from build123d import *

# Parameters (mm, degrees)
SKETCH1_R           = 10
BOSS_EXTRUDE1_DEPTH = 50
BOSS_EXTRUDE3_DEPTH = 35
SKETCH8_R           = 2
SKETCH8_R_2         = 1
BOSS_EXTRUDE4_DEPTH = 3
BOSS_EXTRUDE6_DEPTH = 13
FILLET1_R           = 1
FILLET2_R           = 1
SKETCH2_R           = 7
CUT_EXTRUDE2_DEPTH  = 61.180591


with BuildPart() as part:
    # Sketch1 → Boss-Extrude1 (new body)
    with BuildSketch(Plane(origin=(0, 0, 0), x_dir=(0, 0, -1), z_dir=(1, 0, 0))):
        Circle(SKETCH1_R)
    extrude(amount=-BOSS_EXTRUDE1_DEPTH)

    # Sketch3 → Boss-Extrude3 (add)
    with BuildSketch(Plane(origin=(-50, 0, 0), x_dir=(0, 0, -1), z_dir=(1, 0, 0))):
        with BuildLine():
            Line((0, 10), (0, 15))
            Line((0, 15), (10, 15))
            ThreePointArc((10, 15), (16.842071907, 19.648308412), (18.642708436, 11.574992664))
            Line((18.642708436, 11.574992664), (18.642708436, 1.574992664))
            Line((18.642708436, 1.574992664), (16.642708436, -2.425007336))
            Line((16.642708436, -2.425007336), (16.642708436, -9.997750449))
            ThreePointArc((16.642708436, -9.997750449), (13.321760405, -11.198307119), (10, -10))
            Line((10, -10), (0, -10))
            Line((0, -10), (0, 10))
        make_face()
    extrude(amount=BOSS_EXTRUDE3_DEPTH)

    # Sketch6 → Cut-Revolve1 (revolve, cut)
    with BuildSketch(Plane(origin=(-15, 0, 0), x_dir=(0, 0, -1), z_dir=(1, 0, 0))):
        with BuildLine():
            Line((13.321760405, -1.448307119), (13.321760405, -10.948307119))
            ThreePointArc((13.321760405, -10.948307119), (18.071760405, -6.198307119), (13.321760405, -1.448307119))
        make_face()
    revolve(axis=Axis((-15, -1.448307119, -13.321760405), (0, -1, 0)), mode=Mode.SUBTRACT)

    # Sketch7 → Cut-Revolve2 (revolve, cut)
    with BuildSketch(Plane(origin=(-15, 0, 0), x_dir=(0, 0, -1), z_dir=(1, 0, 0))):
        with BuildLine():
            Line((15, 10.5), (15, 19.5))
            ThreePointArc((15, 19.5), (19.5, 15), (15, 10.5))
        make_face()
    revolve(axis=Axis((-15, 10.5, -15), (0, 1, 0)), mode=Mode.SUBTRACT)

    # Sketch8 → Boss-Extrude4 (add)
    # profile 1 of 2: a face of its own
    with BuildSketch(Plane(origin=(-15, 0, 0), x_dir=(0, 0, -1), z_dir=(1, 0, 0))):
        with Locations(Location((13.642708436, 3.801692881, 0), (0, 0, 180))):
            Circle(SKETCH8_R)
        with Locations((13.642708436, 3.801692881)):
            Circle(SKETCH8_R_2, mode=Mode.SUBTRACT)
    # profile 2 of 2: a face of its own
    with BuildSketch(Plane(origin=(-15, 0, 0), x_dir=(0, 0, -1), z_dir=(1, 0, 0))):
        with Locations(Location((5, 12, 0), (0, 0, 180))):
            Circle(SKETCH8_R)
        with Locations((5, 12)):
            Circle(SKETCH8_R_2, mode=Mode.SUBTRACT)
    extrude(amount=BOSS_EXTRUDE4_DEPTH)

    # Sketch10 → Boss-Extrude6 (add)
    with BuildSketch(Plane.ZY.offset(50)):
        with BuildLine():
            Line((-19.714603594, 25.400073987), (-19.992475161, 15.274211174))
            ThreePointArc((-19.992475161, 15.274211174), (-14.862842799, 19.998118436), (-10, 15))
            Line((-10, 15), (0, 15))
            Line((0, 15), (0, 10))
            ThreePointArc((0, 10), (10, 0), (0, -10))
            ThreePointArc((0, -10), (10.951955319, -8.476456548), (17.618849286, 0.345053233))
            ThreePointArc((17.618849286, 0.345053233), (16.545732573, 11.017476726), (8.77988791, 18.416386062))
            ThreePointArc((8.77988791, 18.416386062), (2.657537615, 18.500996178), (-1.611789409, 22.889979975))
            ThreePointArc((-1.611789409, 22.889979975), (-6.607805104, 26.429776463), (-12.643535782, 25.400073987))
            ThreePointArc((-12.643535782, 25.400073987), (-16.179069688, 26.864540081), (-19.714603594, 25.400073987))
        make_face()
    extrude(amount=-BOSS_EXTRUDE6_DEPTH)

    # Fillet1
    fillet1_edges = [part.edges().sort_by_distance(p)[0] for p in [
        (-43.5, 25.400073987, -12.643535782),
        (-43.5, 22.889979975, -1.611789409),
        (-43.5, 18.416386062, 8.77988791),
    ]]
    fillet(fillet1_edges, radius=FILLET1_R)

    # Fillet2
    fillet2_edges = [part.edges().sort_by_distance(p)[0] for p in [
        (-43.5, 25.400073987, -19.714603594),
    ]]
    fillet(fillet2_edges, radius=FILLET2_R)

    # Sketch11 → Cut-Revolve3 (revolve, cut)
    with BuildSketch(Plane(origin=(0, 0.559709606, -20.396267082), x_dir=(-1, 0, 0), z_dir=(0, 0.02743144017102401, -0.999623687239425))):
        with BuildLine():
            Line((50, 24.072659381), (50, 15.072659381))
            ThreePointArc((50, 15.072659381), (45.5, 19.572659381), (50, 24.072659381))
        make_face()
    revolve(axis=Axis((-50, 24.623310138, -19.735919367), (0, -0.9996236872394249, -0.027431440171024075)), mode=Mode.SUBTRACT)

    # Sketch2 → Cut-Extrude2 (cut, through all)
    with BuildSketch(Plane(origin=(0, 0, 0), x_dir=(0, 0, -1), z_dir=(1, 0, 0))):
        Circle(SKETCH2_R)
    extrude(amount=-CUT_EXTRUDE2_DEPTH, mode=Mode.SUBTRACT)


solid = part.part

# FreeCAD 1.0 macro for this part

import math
import FreeCAD as App
import Part
import Sketcher
from FreeCAD import Vector


def edges_at(feature, points):
    """Names of the edges that pass closest to the given points."""
    edges = feature.Shape.Edges
    near = lambda p: min(range(len(edges)), key=lambda i: edges[i].distToShape(Part.Vertex(*p))[0])
    return sorted({f"Edge{near(p) + 1}" for p in points})

doc = App.newDocument("Part")
body = doc.addObject("PartDesign::Body", "Body")

# Sketch on YZ plane
sketch1 = doc.addObject("Sketcher::SketchObject", "Sketch")
body.addObject(sketch1)
sketch1.AttachmentSupport = (doc.YZ_Plane, [""])
sketch1.MapMode = "FlatFace"
sketch1.addGeometry(Part.Circle(Vector(0, 0, 0), Vector(0, 0, 1), 10), False)
sketch1.addConstraint(Sketcher.Constraint("Coincident", 0, 3, -1, 1))
sketch1.addConstraint(Sketcher.Constraint("Diameter", 0, 20.0))
pad1 = doc.addObject("PartDesign::Pad", "Pad")
body.addObject(pad1)
pad1.Profile = sketch1
pad1.Length = 50
pad1.Reversed = True

# Sketch on YZ plane
sketch2 = doc.addObject("Sketcher::SketchObject", "Sketch001")
body.addObject(sketch2)
sketch2.AttachmentSupport = (doc.YZ_Plane, [""])
sketch2.MapMode = "FlatFace"
sketch2.AttachmentOffset = App.Placement(Vector(0, 0, -50), App.Rotation())
sketch2.addGeometry(Part.LineSegment(Vector(15, -10, 0), Vector(15, 0, 0)), False)
sketch2.addGeometry(Part.LineSegment(Vector(15, 0, 0), Vector(-10, 0, 0)), False)
sketch2.addGeometry(Part.LineSegment(Vector(-10, 0, 0), Vector(-10, -10, 0)), False)
sketch2.addGeometry(Part.ArcOfCircle(Part.Circle(Vector(-6, -13.3, 0), Vector(0, 0, 1), 5.2), math.radians(140), math.radians(220)), False)
sketch2.addGeometry(Part.LineSegment(Vector(-10, -16.6, 0), Vector(-2.4, -16.6, 0)), False)
sketch2.addGeometry(Part.LineSegment(Vector(-2.4, -16.6, 0), Vector(1.6, -18.6, 0)), False)
sketch2.addGeometry(Part.LineSegment(Vector(1.6, -18.6, 0), Vector(11.6, -18.6, 0)), False)
sketch2.addGeometry(Part.ArcOfCircle(Part.Circle(Vector(15, -15, 0), Vector(0, 0, 1), 5), math.radians(-133), math.radians(90)), False)
sketch2.addConstraint(Sketcher.Constraint("Coincident", 0, 2, 1, 1))
sketch2.addConstraint(Sketcher.Constraint("Coincident", 1, 2, 2, 1))
sketch2.addConstraint(Sketcher.Constraint("Coincident", 2, 2, 3, 1))
sketch2.addConstraint(Sketcher.Constraint("Coincident", 3, 2, 4, 1))
sketch2.addConstraint(Sketcher.Constraint("Coincident", 4, 2, 5, 1))
sketch2.addConstraint(Sketcher.Constraint("Coincident", 5, 2, 6, 1))
sketch2.addConstraint(Sketcher.Constraint("Coincident", 6, 2, 7, 1))
sketch2.addConstraint(Sketcher.Constraint("Coincident", 7, 2, 0, 1))
sketch2.addConstraint(Sketcher.Constraint("Vertical", 0))
sketch2.addConstraint(Sketcher.Constraint("Horizontal", 1))
sketch2.addConstraint(Sketcher.Constraint("Vertical", 2))
sketch2.addConstraint(Sketcher.Constraint("Horizontal", 4))
sketch2.addConstraint(Sketcher.Constraint("Horizontal", 6))
sketch2.addConstraint(Sketcher.Constraint("PointOnObject", 0, 2, -1))
sketch2.addConstraint(Sketcher.Constraint("Horizontal", 2, 2, 7, 2))
sketch2.addConstraint(Sketcher.Constraint("Vertical", 7, 3, 0, 2))
sketch2.addConstraint(Sketcher.Constraint("Equal", 6, 0))
sketch2.addConstraint(Sketcher.Constraint("Radius", 7, 5.0))
sketch2.addConstraint(Sketcher.Constraint("DistanceX", 1, 2, 1, 1, 25.0))
sketch2.addConstraint(Sketcher.Constraint("DistanceX", 6, 1, 6, 2, 10.0))
sketch2.addConstraint(Sketcher.Constraint("DistanceX", 3, 3, -1, 1, 6.0))
sketch2.addConstraint(Sketcher.Constraint("DistanceX", -1, 1, 7, 3, 15.0))
sketch2.addConstraint(Sketcher.Constraint("DistanceX", 4, 2, 5, 2, 4.0))
sketch2.addConstraint(Sketcher.Constraint("DistanceY", 5, 2, 4, 2, 2.0))
sketch2.addConstraint(Sketcher.Constraint("DistanceY", 3, 3, -1, 1, 13.32))
sketch2.addConstraint(Sketcher.Constraint("DistanceX", 4, 1, 4, 2, 7.572743))
pad2 = doc.addObject("PartDesign::Pad", "Pad001")
body.addObject(pad2)
pad2.Profile = sketch2
pad2.Length = 35

# Sketch on YZ plane
sketch3 = doc.addObject("Sketcher::SketchObject", "Sketch002")
body.addObject(sketch3)
sketch3.AttachmentSupport = (doc.YZ_Plane, [""])
sketch3.MapMode = "FlatFace"
sketch3.AttachmentOffset = App.Placement(Vector(0, 0, -15), App.Rotation())
sketch3.addGeometry(Part.LineSegment(Vector(-1.4, -13.3, 0), Vector(-10.9, -13.3, 0)), False)
sketch3.addGeometry(Part.ArcOfCircle(Part.Circle(Vector(-6.2, -13.3, 0), Vector(0, 0, 1), 4.8), math.radians(180), math.radians(360)), False)
sketch3.addGeometry(Part.LineSegment(Vector(-1.4, -13.3, 0), Vector(-10.9, -13.3, 0)), True)  # axis
sketch3.addConstraint(Sketcher.Constraint("Coincident", 0, 1, 1, 2))
sketch3.addConstraint(Sketcher.Constraint("Coincident", 1, 1, 0, 2))
sketch3.addConstraint(Sketcher.Constraint("Horizontal", 0))
sketch3.addConstraint(Sketcher.Constraint("Horizontal", 2))
sketch3.addConstraint(Sketcher.Constraint("Coincident", 2, 1, 0, 1))
sketch3.addConstraint(Sketcher.Constraint("Horizontal", 1, 3, 0, 1))
sketch3.addConstraint(Sketcher.Constraint("Equal", 0, 2))
sketch3.addConstraint(Sketcher.Constraint("Radius", 1, 4.75))
sketch3.addConstraint(Sketcher.Constraint("DistanceY", 1, 3, -1, 1, 13.32176))
sketch3.addConstraint(Sketcher.Constraint("DistanceX", 1, 3, -1, 1, 6.198307))
groove = doc.addObject("PartDesign::Groove", "Groove")
body.addObject(groove)
groove.Profile = sketch3
groove.ReferenceAxis = (sketch3, ["Axis0"])
groove.Angle = 360

# Sketch on YZ plane
sketch4 = doc.addObject("Sketcher::SketchObject", "Sketch003")
body.addObject(sketch4)
sketch4.AttachmentSupport = (doc.YZ_Plane, [""])
sketch4.MapMode = "FlatFace"
sketch4.AttachmentOffset = App.Placement(Vector(0, 0, -15), App.Rotation())
sketch4.addGeometry(Part.LineSegment(Vector(19.5, -15, 0), Vector(10.5, -15, 0)), False)
sketch4.addGeometry(Part.ArcOfCircle(Part.Circle(Vector(15, -15, 0), Vector(0, 0, 1), 4.5), math.radians(180), math.radians(360)), False)
sketch4.addGeometry(Part.LineSegment(Vector(10.5, -15, 0), Vector(19.5, -15, 0)), True)  # axis
sketch4.addConstraint(Sketcher.Constraint("Coincident", 0, 1, 1, 2))
sketch4.addConstraint(Sketcher.Constraint("Coincident", 1, 1, 0, 2))
sketch4.addConstraint(Sketcher.Constraint("Horizontal", 0))
sketch4.addConstraint(Sketcher.Constraint("Horizontal", 2))
sketch4.addConstraint(Sketcher.Constraint("Coincident", 2, 1, 1, 1))
sketch4.addConstraint(Sketcher.Constraint("Horizontal", 1, 3, 0, 1))
sketch4.addConstraint(Sketcher.Constraint("Equal", 0, 2))
sketch4.addConstraint(Sketcher.Constraint("Radius", 1, 4.5))
sketch4.addConstraint(Sketcher.Constraint("DistanceX", -1, 1, 1, 3, 15.0))
sketch4.addConstraint(Sketcher.Constraint("DistanceY", 1, 3, -1, 1, 15.0))
groove2 = doc.addObject("PartDesign::Groove", "Groove001")
body.addObject(groove2)
groove2.Profile = sketch4
groove2.ReferenceAxis = (sketch4, ["Axis0"])
groove2.Angle = 360

# Sketch on YZ plane
sketch5 = doc.addObject("Sketcher::SketchObject", "Sketch004")
body.addObject(sketch5)
sketch5.AttachmentSupport = (doc.YZ_Plane, [""])
sketch5.MapMode = "FlatFace"
sketch5.AttachmentOffset = App.Placement(Vector(0, 0, -15), App.Rotation())
sketch5.addGeometry(Part.Circle(Vector(3.8, -13.6, 0), Vector(0, 0, 1), 2), False)
sketch5.addGeometry(Part.Circle(Vector(3.8, -13.6, 0), Vector(0, 0, 1), 1), False)
sketch5.addGeometry(Part.Circle(Vector(12, -5, 0), Vector(0, 0, 1), 2), False)
sketch5.addGeometry(Part.Circle(Vector(12, -5, 0), Vector(0, 0, 1), 1), False)
sketch5.addConstraint(Sketcher.Constraint("Coincident", 1, 3, 0, 3))
sketch5.addConstraint(Sketcher.Constraint("Coincident", 3, 3, 2, 3))
sketch5.addConstraint(Sketcher.Constraint("Equal", 0, 2))
sketch5.addConstraint(Sketcher.Constraint("Equal", 1, 3))
sketch5.addConstraint(Sketcher.Constraint("Diameter", 0, 4.0))
sketch5.addConstraint(Sketcher.Constraint("Diameter", 1, 2.0))
sketch5.addConstraint(Sketcher.Constraint("DistanceX", -1, 1, 2, 3, 12.0))
sketch5.addConstraint(Sketcher.Constraint("DistanceY", 2, 3, -1, 1, 5.0))
sketch5.addConstraint(Sketcher.Constraint("DistanceY", 0, 3, -1, 1, 13.642708))
sketch5.addConstraint(Sketcher.Constraint("DistanceX", -1, 1, 0, 3, 3.801693))
pad3 = doc.addObject("PartDesign::Pad", "Pad002")
body.addObject(pad3)
pad3.Profile = sketch5
pad3.Length = 3

# Sketch on YZ plane
sketch6 = doc.addObject("Sketcher::SketchObject", "Sketch005")
body.addObject(sketch6)
sketch6.AttachmentSupport = (doc.YZ_Plane, [""])
sketch6.MapMode = "FlatFace"
sketch6.AttachmentOffset = App.Placement(Vector(0, 0, -50), App.Rotation())
sketch6.addGeometry(Part.LineSegment(Vector(25, -20, 0), Vector(15, -20, 0)), False)
sketch6.addGeometry(Part.ArcOfCircle(Part.Circle(Vector(15, -15, 0), Vector(0, 0, 1), 5), math.radians(-87), math.radians(90)), False)
sketch6.addGeometry(Part.LineSegment(Vector(15, -10, 0), Vector(15, 0, 0)), False)
sketch6.addGeometry(Part.LineSegment(Vector(15, 0, 0), Vector(10, 0, 0)), False)
sketch6.addGeometry(Part.ArcOfCircle(Part.Circle(Vector(0, 0, 0), Vector(0, 0, 1), 10), math.radians(0), math.radians(180)), False)
sketch6.addGeometry(Part.ArcOfCircle(Part.Circle(Vector(4, 4, 0), Vector(0, 0, 1), 14), math.radians(105), math.radians(195)), False)
sketch6.addGeometry(Part.ArcOfCircle(Part.Circle(Vector(4, 3, 0), Vector(0, 0, 1), 15), math.radians(23), math.radians(105)), False)
sketch6.addGeometry(Part.ArcOfCircle(Part.Circle(Vector(26, 6, 0), Vector(0, 0, 1), 8), math.radians(158), math.radians(248)), False)
sketch6.addGeometry(Part.ArcOfCircle(Part.Circle(Vector(19, -8, 0), Vector(0, 0, 1), 8), math.radians(-32), math.radians(58)), False)
sketch6.addGeometry(Part.ArcOfCircle(Part.Circle(Vector(22, -16, 0), Vector(0, 0, 1), 5), math.radians(-45), math.radians(45)), False)
sketch6.addConstraint(Sketcher.Constraint("Coincident", 0, 2, 1, 1))
sketch6.addConstraint(Sketcher.Constraint("Coincident", 1, 2, 2, 1))
sketch6.addConstraint(Sketcher.Constraint("Coincident", 2, 2, 3, 1))
sketch6.addConstraint(Sketcher.Constraint("Coincident", 3, 2, 4, 1))
sketch6.addConstraint(Sketcher.Constraint("Coincident", 4, 2, 5, 2))
sketch6.addConstraint(Sketcher.Constraint("Tangent", 5, 1, 6, 2))
sketch6.addConstraint(Sketcher.Constraint("Coincident", 6, 1, 7, 1))
sketch6.addConstraint(Sketcher.Constraint("Coincident", 7, 2, 8, 2))
sketch6.addConstraint(Sketcher.Constraint("Coincident", 8, 1, 9, 2))
sketch6.addConstraint(Sketcher.Constraint("Coincident", 9, 1, 0, 1))
sketch6.addConstraint(Sketcher.Constraint("Vertical", 2))
sketch6.addConstraint(Sketcher.Constraint("Horizontal", 3))
sketch6.addConstraint(Sketcher.Constraint("Coincident", 4, 3, -1, 1))
sketch6.addConstraint(Sketcher.Constraint("Equal", 7, 8))
sketch6.addConstraint(Sketcher.Constraint("Equal", 1, 9))
sketch6.addConstraint(Sketcher.Constraint("PointOnObject", 2, 2, -1))
sketch6.addConstraint(Sketcher.Constraint("PointOnObject", 4, 2, -1))
sketch6.addConstraint(Sketcher.Constraint("Vertical", 8, 1, 9, 1))
sketch6.addConstraint(Sketcher.Constraint("Radius", 1, 5.0))
sketch6.addConstraint(Sketcher.Constraint("Radius", 4, 10.0))
sketch6.addConstraint(Sketcher.Constraint("Radius", 7, 8.0))
sketch6.addConstraint(Sketcher.Constraint("DistanceX", 3, 2, 3, 1, 5.0))
sketch6.addConstraint(Sketcher.Constraint("DistanceY", 2, 1, 2, 2, 10.0))
sketch6.addConstraint(Sketcher.Constraint("DistanceX", -1, 1, 1, 3, 15.0))
sketch6.addConstraint(Sketcher.Constraint("Radius", 5, 14.447214))
sketch6.addConstraint(Sketcher.Constraint("Radius", 6, 15.442414))
sketch6.addConstraint(Sketcher.Constraint("DistanceY", -1, 1, 5, 3, 3.636898))
sketch6.addConstraint(Sketcher.Constraint("DistanceY", 6, 3, 7, 3, 3.147098))
sketch6.addConstraint(Sketcher.Constraint("DistanceX", 5, 1, 5, 3, 3.636898))
sketch6.addConstraint(Sketcher.Constraint("DistanceX", -1, 1, 7, 3, 25.849022))
sketch6.addConstraint(Sketcher.Constraint("DistanceY", 8, 3, -1, 1, 8.38271))
sketch6.addConstraint(Sketcher.Constraint("DistanceX", -1, 1, 9, 3, 21.86454))
sketch6.addConstraint(Sketcher.Constraint("DistanceY", 9, 3, -1, 1, 16.17907))
sketch6.addConstraint(Sketcher.Constraint("DistanceX", -1, 1, 0, 2, 15.274211))
sketch6.addConstraint(Sketcher.Constraint("DistanceX", -1, 1, 7, 2, 22.88998))
pad4 = doc.addObject("PartDesign::Pad", "Pad003")
body.addObject(pad4)
pad4.Profile = sketch6
pad4.Length = 13
doc.recompute()

fillet = doc.addObject("PartDesign::Fillet", "Fillet")
body.addObject(fillet)
fillet.Base = (pad4, edges_at(pad4, [(-43.5, 25.4, -12.644), (-43.5, 22.89, -1.612), (-43.5, 18.416, 8.78)]))
fillet.Radius = 1
doc.recompute()

fillet2 = doc.addObject("PartDesign::Fillet", "Fillet001")
body.addObject(fillet2)
fillet2.Base = (fillet, edges_at(fillet, [(-43.5, 25.4, -19.715)]))
fillet2.Radius = 1

# Sketch on an angled plane
sketch7 = doc.addObject("Sketcher::SketchObject", "Sketch006")
body.addObject(sketch7)
sketch7.Placement = App.Placement(Vector(0, 0.55971, -20.396267), App.Rotation(Vector(-1, 0, 0), Vector(0, 0.999623687, 0.02743144), Vector(0, 0.02743144, -0.999623687), "ZXY"))
sketch7.addGeometry(Part.LineSegment(Vector(50, 15.1, 0), Vector(50, 24.1, 0)), False)
sketch7.addGeometry(Part.ArcOfCircle(Part.Circle(Vector(50, 19.6, 0), Vector(0, 0, 1), 4.5), math.radians(90), math.radians(270)), False)
sketch7.addGeometry(Part.LineSegment(Vector(50, 24.1, 0), Vector(50, 15.1, 0)), True)  # axis
sketch7.addConstraint(Sketcher.Constraint("Coincident", 0, 1, 1, 2))
sketch7.addConstraint(Sketcher.Constraint("Coincident", 1, 1, 0, 2))
sketch7.addConstraint(Sketcher.Constraint("Vertical", 0))
sketch7.addConstraint(Sketcher.Constraint("Vertical", 2))
sketch7.addConstraint(Sketcher.Constraint("Coincident", 2, 1, 1, 1))
sketch7.addConstraint(Sketcher.Constraint("Vertical", 1, 3, 0, 1))
sketch7.addConstraint(Sketcher.Constraint("Equal", 0, 2))
sketch7.addConstraint(Sketcher.Constraint("Radius", 1, 4.5))
sketch7.addConstraint(Sketcher.Constraint("DistanceX", -1, 1, 1, 3, 50.0))
sketch7.addConstraint(Sketcher.Constraint("DistanceY", -1, 1, 1, 3, 19.572659))
groove3 = doc.addObject("PartDesign::Groove", "Groove002")
body.addObject(groove3)
groove3.Profile = sketch7
groove3.ReferenceAxis = (sketch7, ["Axis0"])
groove3.Angle = 360

# Sketch on YZ plane
sketch8 = doc.addObject("Sketcher::SketchObject", "Sketch007")
body.addObject(sketch8)
sketch8.AttachmentSupport = (doc.YZ_Plane, [""])
sketch8.MapMode = "FlatFace"
sketch8.addGeometry(Part.Circle(Vector(0, 0, 0), Vector(0, 0, 1), 7), False)
sketch8.addConstraint(Sketcher.Constraint("Coincident", 0, 3, -1, 1))
sketch8.addConstraint(Sketcher.Constraint("Diameter", 0, 14.0))
pocket1 = doc.addObject("PartDesign::Pocket", "Pocket")
body.addObject(pocket1)
pocket1.Profile = sketch8
pocket1.Type = "ThroughAll"

doc.recompute()
